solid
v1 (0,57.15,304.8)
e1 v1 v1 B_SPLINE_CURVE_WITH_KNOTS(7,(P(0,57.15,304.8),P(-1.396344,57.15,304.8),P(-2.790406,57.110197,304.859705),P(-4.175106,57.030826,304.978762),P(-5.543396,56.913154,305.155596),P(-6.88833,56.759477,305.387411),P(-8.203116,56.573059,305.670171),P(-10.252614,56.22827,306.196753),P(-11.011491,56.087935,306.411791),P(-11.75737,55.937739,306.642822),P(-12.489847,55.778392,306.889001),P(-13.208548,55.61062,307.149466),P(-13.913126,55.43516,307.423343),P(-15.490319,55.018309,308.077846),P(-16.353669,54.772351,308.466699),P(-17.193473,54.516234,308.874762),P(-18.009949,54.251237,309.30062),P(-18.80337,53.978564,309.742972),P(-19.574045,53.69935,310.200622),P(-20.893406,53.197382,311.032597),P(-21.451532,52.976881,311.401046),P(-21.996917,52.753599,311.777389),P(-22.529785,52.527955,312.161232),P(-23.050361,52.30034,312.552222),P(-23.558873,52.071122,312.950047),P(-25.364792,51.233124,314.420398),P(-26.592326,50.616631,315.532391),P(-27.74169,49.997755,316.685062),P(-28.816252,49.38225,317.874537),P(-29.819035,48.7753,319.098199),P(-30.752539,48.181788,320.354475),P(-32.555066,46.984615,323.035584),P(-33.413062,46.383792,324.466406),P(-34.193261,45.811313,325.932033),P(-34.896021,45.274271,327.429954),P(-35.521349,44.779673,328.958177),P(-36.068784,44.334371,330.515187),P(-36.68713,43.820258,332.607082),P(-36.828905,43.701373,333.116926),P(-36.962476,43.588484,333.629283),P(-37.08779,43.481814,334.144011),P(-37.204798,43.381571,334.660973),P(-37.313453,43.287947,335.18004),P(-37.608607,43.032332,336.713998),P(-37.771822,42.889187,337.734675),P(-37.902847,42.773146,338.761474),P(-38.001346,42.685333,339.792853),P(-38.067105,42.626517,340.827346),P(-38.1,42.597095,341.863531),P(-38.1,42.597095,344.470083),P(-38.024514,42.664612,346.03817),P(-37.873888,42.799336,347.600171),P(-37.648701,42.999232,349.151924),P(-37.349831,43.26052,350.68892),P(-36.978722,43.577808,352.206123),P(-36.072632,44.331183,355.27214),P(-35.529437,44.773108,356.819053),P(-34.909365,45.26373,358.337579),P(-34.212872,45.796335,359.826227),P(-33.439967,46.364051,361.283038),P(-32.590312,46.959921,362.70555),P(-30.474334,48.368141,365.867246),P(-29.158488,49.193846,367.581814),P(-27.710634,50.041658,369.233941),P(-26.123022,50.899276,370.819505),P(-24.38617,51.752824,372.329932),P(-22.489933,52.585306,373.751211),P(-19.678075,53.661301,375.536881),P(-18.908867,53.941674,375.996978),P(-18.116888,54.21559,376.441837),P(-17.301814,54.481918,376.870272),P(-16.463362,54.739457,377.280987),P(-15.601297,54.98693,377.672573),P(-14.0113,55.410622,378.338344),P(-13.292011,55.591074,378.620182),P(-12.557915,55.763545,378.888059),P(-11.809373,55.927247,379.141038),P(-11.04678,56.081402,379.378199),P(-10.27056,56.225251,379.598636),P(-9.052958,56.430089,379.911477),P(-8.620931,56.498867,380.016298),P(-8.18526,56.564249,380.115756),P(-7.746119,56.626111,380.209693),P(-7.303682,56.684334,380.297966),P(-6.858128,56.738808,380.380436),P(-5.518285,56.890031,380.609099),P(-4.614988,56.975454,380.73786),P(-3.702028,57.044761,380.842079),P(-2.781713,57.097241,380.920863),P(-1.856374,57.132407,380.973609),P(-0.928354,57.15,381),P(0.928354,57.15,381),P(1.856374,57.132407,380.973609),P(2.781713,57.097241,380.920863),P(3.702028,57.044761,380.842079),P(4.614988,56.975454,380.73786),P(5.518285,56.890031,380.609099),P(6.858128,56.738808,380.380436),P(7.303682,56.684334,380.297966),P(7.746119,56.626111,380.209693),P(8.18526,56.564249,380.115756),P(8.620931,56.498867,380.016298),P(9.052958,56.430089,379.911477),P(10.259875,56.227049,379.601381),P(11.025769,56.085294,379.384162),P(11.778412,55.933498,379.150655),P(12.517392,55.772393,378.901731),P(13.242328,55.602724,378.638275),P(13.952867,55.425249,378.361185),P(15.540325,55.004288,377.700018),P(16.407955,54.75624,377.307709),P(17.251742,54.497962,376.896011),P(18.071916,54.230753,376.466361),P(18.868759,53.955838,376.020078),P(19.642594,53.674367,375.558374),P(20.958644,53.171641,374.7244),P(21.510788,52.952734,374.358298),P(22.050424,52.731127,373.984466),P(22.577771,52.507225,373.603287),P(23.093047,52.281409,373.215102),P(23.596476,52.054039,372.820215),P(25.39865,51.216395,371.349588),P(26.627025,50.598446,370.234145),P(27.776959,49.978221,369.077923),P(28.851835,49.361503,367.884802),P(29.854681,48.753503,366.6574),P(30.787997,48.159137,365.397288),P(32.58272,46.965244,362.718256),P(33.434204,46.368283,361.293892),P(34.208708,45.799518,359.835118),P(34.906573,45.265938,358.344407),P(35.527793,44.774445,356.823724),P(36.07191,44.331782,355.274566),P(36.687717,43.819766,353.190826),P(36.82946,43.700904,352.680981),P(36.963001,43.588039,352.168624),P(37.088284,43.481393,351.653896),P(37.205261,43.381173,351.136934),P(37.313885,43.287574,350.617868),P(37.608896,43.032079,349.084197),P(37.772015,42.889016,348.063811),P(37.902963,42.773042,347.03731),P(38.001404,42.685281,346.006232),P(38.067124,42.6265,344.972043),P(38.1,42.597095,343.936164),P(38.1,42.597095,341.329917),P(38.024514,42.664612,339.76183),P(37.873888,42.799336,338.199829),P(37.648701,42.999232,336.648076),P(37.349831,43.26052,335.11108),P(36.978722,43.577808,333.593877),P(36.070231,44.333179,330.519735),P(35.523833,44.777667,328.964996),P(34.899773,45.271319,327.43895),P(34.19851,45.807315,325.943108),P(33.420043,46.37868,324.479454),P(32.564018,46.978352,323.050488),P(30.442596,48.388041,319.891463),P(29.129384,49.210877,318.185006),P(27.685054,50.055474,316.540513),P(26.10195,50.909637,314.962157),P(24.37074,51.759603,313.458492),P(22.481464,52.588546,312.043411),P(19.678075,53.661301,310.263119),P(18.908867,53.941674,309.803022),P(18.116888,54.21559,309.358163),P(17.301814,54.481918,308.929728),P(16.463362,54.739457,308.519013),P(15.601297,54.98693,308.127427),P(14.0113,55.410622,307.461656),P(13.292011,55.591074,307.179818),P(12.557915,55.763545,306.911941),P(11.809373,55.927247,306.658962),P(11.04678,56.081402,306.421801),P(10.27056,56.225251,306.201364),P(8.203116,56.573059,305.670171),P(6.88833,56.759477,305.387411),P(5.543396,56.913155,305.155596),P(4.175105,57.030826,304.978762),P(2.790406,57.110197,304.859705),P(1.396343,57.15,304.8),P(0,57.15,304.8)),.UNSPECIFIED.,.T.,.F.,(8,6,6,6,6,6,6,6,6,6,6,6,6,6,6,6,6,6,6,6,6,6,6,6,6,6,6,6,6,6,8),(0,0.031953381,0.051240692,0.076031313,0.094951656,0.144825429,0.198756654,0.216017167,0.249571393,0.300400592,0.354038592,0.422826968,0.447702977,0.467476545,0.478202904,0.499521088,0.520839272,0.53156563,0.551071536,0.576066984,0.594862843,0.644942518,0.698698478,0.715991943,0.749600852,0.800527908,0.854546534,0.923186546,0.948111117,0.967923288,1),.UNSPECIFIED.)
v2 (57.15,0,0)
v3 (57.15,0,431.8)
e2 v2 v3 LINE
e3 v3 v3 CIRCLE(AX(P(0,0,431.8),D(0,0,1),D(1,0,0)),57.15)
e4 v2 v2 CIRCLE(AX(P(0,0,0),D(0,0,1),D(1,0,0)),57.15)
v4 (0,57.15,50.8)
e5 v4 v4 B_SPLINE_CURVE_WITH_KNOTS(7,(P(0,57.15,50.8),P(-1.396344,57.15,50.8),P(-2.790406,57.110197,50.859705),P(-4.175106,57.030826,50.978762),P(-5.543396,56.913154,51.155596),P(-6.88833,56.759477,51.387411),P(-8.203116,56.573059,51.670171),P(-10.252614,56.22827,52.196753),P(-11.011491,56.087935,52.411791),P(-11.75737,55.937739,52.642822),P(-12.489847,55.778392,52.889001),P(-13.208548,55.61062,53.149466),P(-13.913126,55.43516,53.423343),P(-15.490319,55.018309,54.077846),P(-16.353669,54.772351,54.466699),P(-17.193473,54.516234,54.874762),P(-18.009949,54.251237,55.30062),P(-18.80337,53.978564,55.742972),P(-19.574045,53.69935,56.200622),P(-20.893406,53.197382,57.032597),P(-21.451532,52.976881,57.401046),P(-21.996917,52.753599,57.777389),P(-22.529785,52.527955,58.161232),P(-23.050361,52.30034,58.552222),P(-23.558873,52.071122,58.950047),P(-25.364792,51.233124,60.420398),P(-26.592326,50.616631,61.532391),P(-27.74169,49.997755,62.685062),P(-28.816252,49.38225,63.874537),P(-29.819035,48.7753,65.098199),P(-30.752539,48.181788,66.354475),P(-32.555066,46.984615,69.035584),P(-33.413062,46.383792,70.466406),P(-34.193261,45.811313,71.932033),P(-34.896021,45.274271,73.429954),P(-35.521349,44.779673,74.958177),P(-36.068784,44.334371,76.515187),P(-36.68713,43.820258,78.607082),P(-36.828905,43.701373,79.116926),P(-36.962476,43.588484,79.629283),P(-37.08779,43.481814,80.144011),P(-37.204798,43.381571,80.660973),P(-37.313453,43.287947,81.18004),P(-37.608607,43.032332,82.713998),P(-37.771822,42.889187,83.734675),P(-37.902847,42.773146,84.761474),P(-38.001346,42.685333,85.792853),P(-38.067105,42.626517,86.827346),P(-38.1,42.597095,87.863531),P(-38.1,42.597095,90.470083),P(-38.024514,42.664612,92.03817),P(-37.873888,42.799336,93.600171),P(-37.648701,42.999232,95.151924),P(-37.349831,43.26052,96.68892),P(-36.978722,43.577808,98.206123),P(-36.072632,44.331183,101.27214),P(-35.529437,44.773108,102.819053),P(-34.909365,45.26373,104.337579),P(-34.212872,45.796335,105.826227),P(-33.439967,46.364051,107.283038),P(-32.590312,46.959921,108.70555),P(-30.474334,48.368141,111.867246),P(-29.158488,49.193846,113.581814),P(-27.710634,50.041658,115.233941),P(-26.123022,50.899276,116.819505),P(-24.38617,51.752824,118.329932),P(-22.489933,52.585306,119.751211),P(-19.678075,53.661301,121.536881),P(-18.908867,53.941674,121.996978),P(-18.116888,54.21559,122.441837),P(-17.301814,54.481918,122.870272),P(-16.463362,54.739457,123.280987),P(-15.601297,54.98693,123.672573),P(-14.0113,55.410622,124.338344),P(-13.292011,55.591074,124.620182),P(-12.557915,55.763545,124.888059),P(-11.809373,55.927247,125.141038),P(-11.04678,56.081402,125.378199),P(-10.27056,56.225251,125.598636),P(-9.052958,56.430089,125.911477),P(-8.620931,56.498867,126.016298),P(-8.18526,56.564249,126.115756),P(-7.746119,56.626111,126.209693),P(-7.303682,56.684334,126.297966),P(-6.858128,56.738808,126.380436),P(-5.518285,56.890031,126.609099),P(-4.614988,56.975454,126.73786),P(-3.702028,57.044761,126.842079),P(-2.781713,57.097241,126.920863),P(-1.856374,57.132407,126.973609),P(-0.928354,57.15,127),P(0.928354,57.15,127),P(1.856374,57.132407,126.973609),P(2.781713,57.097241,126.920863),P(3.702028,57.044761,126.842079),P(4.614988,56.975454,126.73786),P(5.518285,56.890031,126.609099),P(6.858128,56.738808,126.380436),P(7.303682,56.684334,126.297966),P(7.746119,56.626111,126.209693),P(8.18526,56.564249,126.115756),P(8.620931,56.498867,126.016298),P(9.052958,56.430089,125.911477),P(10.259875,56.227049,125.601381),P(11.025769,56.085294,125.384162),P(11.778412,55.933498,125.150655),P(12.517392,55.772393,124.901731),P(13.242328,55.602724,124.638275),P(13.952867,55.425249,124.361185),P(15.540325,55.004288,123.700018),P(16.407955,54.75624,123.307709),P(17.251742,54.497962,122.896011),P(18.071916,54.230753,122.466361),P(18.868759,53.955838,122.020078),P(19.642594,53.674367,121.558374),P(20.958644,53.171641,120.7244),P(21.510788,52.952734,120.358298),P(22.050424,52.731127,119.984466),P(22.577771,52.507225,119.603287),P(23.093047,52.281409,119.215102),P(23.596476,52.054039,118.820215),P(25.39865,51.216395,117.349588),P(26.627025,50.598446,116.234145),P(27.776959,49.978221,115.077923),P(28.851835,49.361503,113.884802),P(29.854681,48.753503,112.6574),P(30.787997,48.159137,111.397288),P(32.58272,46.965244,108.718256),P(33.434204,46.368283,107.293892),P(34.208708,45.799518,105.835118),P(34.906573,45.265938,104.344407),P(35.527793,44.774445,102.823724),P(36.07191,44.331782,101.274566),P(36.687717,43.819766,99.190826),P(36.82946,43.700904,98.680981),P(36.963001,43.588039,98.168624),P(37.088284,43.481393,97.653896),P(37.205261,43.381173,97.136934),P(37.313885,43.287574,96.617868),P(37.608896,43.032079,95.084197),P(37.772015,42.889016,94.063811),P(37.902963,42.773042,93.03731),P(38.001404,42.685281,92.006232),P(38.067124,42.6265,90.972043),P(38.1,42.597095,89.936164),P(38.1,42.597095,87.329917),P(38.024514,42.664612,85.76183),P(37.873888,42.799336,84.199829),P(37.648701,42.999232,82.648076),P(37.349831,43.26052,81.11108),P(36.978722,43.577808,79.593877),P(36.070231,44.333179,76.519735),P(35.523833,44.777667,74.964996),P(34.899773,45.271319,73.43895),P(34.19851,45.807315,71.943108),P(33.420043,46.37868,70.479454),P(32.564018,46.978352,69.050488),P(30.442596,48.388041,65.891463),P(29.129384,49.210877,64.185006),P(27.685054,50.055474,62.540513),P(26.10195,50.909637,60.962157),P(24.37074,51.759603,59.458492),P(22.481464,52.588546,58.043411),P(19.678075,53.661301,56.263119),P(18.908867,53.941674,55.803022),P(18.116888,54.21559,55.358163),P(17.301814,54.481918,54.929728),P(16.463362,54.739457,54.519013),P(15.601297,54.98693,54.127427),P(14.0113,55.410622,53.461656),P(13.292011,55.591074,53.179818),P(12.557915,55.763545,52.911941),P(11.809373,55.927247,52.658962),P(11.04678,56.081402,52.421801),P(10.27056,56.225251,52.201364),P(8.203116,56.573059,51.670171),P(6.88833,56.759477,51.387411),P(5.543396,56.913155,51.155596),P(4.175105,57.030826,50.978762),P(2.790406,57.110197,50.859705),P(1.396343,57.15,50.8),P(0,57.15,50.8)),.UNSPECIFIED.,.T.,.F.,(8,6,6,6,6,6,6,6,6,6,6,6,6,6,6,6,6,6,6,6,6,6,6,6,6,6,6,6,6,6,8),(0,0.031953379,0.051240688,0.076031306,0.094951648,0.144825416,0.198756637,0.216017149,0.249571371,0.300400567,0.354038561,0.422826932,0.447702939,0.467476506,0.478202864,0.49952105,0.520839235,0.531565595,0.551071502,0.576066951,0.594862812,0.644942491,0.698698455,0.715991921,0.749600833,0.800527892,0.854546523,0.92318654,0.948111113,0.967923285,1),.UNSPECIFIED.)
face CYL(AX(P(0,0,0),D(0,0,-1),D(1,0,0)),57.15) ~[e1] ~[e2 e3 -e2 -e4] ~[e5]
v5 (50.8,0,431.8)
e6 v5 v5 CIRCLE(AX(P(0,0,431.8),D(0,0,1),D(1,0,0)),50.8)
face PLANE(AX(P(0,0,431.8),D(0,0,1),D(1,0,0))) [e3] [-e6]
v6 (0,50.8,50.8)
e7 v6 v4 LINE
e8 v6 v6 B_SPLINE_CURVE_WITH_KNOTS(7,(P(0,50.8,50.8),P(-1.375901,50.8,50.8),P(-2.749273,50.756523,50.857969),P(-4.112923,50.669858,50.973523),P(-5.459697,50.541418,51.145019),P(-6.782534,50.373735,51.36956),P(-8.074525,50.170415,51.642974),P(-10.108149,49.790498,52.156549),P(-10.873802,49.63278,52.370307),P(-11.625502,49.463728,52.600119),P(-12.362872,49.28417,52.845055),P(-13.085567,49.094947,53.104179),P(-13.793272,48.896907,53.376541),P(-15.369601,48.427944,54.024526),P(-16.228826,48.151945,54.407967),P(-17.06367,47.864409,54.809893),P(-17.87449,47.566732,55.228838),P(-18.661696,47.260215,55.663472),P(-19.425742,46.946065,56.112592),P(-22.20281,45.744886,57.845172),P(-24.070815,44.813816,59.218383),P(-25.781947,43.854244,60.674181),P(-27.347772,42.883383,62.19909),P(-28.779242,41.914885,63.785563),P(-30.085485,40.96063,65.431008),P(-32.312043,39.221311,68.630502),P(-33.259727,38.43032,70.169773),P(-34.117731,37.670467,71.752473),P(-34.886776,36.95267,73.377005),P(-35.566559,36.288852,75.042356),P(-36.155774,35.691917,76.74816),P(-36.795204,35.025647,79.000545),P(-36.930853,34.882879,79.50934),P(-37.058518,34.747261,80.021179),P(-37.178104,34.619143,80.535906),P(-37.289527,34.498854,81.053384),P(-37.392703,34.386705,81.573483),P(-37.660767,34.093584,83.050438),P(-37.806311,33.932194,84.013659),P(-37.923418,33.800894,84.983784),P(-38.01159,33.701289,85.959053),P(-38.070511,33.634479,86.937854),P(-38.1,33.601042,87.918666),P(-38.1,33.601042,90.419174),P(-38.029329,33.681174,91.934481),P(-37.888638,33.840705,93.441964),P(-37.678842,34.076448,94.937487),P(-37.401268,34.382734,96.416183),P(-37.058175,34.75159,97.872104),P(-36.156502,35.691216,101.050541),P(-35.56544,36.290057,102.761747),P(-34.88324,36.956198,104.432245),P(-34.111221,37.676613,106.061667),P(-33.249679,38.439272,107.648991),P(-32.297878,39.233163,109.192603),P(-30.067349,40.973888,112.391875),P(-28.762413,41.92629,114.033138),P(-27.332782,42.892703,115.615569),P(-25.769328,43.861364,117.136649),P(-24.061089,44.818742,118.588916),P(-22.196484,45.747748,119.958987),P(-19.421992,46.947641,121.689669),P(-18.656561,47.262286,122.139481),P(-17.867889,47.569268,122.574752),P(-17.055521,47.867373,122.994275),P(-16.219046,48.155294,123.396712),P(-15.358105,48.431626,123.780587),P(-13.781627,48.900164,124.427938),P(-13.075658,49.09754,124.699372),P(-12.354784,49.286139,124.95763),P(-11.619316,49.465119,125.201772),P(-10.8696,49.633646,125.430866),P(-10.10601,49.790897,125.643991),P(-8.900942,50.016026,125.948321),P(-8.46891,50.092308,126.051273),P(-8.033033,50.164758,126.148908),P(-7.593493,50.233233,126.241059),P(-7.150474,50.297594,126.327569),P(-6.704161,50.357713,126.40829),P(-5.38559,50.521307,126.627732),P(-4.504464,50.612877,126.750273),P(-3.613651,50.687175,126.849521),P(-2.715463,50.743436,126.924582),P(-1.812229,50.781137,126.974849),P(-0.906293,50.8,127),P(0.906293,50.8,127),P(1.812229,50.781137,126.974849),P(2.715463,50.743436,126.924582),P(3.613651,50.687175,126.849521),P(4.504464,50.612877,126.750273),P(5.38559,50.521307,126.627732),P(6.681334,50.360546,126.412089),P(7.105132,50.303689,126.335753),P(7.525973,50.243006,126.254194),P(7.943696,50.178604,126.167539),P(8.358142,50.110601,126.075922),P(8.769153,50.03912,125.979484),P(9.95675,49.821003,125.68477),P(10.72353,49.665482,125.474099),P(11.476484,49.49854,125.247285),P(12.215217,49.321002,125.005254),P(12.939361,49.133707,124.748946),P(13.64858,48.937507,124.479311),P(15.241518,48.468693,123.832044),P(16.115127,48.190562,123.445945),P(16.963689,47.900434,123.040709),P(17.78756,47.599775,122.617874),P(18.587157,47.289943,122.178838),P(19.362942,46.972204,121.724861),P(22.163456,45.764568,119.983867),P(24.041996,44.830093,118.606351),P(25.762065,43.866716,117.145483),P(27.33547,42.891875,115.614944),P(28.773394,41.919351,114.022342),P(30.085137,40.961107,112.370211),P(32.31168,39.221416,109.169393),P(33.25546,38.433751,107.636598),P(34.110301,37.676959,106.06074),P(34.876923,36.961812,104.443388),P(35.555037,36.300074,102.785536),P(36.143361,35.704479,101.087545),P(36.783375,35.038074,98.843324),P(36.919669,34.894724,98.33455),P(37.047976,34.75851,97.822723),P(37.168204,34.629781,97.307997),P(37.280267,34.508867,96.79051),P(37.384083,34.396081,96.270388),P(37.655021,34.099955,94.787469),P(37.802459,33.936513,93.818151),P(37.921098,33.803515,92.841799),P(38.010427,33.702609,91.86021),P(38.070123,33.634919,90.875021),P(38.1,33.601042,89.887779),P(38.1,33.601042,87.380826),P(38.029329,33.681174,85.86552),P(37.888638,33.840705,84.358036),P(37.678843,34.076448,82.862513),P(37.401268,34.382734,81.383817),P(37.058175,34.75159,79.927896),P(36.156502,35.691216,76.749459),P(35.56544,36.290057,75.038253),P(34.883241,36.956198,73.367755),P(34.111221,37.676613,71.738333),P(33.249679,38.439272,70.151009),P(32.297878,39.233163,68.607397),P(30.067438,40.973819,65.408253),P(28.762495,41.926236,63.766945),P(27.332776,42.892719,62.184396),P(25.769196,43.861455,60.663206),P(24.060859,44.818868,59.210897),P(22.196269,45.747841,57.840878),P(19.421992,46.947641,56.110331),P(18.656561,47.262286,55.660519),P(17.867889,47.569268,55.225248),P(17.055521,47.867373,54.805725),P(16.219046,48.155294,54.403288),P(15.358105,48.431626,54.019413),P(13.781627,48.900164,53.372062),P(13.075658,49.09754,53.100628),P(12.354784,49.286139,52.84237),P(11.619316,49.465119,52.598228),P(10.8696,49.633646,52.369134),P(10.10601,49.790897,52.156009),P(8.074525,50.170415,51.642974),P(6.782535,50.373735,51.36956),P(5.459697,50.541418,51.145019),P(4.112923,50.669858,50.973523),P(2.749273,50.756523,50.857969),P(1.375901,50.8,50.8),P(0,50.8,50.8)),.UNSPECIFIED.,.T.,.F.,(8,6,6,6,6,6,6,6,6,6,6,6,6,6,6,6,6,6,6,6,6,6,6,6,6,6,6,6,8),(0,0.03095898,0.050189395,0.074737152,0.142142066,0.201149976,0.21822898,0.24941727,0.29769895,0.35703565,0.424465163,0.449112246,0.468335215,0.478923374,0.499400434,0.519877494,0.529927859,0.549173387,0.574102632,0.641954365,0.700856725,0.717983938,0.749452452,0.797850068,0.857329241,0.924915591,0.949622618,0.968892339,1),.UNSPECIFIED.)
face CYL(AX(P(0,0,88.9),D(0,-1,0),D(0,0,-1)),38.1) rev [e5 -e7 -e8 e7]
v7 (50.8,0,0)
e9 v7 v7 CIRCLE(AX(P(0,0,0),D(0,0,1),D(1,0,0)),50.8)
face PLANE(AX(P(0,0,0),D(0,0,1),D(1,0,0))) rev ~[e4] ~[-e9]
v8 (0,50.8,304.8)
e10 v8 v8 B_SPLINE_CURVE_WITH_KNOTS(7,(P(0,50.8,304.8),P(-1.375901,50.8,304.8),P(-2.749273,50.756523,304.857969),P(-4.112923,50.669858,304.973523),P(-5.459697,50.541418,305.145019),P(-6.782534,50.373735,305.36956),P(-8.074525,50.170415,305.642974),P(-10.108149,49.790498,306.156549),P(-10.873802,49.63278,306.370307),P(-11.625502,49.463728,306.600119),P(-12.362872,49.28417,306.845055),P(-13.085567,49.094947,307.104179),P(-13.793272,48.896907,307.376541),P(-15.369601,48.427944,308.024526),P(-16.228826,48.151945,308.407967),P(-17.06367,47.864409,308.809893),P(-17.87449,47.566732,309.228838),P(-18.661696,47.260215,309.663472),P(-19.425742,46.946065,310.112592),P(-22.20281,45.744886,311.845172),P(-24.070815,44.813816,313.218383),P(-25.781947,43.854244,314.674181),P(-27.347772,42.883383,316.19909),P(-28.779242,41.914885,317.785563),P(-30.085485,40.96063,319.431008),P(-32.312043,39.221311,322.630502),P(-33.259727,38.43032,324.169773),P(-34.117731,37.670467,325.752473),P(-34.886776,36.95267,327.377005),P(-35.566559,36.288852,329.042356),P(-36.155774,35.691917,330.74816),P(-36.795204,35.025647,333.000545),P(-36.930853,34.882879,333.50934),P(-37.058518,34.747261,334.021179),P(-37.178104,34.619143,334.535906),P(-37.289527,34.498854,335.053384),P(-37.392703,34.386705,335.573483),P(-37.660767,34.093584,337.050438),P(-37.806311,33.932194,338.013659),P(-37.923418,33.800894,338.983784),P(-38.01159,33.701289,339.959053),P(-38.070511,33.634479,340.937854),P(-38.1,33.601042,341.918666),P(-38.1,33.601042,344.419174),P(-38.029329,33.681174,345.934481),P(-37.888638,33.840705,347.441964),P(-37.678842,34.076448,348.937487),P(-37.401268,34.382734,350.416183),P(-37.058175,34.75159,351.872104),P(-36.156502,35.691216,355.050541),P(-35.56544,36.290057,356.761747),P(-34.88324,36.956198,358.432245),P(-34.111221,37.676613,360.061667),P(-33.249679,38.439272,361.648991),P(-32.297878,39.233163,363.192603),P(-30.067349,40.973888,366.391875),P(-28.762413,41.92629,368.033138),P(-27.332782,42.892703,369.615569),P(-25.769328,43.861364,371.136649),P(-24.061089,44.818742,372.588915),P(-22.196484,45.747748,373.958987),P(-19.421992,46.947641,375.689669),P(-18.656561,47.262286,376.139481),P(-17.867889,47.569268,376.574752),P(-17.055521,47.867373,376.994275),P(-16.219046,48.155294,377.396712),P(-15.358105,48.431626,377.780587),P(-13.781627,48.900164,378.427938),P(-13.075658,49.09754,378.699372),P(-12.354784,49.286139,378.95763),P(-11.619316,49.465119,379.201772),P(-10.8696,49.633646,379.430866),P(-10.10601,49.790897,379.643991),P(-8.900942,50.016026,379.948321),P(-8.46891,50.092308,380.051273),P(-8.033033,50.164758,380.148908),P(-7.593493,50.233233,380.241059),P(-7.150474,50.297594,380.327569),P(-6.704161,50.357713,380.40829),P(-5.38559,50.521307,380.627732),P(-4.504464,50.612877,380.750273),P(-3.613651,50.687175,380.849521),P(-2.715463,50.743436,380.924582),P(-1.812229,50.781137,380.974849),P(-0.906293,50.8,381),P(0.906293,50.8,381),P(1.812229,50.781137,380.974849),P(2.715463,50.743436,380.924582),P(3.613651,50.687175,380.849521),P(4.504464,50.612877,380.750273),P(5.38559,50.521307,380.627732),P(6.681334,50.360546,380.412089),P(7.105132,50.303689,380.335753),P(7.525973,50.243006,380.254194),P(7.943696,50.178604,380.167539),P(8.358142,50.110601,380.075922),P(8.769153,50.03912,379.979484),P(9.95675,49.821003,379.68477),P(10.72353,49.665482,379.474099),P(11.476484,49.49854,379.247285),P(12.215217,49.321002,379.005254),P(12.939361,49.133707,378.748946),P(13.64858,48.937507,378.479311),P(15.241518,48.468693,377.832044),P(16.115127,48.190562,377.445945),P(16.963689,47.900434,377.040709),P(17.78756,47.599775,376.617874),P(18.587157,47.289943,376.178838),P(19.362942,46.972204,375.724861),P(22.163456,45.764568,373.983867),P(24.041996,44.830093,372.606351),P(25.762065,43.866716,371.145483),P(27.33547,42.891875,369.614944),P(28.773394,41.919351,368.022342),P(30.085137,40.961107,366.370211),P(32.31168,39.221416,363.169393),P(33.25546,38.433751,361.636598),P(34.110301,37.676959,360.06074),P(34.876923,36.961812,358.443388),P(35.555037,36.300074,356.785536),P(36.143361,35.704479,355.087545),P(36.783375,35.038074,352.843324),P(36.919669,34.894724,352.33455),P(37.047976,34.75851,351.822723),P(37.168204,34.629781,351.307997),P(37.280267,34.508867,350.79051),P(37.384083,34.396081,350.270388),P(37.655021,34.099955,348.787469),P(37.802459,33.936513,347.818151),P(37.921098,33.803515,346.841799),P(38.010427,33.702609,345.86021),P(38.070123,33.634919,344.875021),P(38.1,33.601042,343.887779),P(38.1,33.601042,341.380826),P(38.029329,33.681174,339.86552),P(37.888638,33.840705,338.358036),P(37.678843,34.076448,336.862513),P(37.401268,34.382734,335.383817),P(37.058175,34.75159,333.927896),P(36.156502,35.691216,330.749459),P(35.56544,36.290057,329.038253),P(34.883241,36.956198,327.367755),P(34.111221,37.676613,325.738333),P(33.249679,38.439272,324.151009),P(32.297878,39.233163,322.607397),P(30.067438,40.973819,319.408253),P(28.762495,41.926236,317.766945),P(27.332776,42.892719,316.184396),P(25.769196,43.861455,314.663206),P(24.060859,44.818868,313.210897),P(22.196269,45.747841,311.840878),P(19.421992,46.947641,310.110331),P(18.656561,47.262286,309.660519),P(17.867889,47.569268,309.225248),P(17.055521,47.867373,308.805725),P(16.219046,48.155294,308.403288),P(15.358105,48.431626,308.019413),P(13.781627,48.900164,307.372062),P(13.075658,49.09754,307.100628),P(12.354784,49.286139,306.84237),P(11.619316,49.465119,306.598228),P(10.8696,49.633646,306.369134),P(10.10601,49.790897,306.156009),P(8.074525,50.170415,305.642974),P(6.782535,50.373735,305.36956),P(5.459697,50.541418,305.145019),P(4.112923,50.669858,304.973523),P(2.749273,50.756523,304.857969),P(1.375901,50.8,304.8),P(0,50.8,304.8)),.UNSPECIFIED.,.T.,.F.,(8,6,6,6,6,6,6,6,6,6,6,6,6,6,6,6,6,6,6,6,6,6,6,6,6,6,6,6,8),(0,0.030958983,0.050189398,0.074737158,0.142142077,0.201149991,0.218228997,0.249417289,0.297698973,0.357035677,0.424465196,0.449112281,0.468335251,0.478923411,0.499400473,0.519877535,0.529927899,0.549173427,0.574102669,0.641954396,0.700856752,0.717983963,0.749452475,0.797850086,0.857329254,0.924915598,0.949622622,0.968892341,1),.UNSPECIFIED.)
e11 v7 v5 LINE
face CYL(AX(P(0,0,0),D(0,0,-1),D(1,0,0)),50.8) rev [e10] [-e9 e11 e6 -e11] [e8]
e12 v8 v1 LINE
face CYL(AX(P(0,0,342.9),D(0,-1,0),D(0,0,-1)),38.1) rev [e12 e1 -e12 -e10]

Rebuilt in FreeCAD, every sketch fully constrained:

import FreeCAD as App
import Part
import Sketcher
from FreeCAD import Vector
Q = App.Units.Quantity

doc = App.newDocument("Part")
body = doc.addObject("PartDesign::Body", "Body")

sketch1 = body.newObject("Sketcher::SketchObject", "Sketch")
sketch1.AttachmentSupport = (doc.getObject("XY_Plane"), [""])
sketch1.MapMode = "FlatFace"
sketch1.addGeometry([
    Part.Circle(Vector(0, 0, 0), Vector(0, 0, 1), 57.15),
    Part.Circle(Vector(0, 0, 0), Vector(0, 0, 1), 50.8),
], False)
sketch1.addConstraint([
    Sketcher.Constraint("Coincident", 0, 3, -1, 1),
    Sketcher.Constraint("Coincident", 1, 3, -1, 1),
    Sketcher.Constraint("Diameter", 1, Q("4 in")),
    Sketcher.Constraint("Diameter", 0, Q("4.5 in")),
])
pad1 = body.newObject("PartDesign::Pad", "Pad")
pad1.Profile = sketch1
pad1.Length = Q("17 in")

sketch2 = body.newObject("Sketcher::SketchObject", "Sketch001")
sketch2.AttachmentSupport = (doc.getObject("XZ_Plane"), [""])
sketch2.MapMode = "FlatFace"
sketch2.addGeometry([
    Part.Circle(Vector(0, 88.9, 0), Vector(0, 0, 1), 38.1),
    Part.Circle(Vector(0, 342.9, 0), Vector(0, 0, 1), 38.1),
    Part.Circle(Vector(0, 596.9, 0), Vector(0, 0, 1), 38.1),
], False)
sketch2.addConstraint([
    Sketcher.Constraint("Equal", 0, 1),
    Sketcher.Constraint("Equal", 1, 2),
    Sketcher.Constraint("PointOnObject", 0, 3, -2),
    Sketcher.Constraint("PointOnObject", 1, 3, -2),
    Sketcher.Constraint("PointOnObject", 2, 3, -2),
    Sketcher.Constraint("Diameter", 0, Q("3 in")),
    Sketcher.Constraint("DistanceY", 0, 3, 1, 3, Q("10 in")),
    Sketcher.Constraint("DistanceY", 1, 3, 2, 3, Q("10 in")),
    Sketcher.Constraint("DistanceY", -1, 1, 0, 3, Q("3.5 in")),
])
pocket1 = body.newObject("PartDesign::Pocket", "Pocket")
pocket1.Profile = sketch2
pocket1.Length = Q("36 in")

doc.recompute()
